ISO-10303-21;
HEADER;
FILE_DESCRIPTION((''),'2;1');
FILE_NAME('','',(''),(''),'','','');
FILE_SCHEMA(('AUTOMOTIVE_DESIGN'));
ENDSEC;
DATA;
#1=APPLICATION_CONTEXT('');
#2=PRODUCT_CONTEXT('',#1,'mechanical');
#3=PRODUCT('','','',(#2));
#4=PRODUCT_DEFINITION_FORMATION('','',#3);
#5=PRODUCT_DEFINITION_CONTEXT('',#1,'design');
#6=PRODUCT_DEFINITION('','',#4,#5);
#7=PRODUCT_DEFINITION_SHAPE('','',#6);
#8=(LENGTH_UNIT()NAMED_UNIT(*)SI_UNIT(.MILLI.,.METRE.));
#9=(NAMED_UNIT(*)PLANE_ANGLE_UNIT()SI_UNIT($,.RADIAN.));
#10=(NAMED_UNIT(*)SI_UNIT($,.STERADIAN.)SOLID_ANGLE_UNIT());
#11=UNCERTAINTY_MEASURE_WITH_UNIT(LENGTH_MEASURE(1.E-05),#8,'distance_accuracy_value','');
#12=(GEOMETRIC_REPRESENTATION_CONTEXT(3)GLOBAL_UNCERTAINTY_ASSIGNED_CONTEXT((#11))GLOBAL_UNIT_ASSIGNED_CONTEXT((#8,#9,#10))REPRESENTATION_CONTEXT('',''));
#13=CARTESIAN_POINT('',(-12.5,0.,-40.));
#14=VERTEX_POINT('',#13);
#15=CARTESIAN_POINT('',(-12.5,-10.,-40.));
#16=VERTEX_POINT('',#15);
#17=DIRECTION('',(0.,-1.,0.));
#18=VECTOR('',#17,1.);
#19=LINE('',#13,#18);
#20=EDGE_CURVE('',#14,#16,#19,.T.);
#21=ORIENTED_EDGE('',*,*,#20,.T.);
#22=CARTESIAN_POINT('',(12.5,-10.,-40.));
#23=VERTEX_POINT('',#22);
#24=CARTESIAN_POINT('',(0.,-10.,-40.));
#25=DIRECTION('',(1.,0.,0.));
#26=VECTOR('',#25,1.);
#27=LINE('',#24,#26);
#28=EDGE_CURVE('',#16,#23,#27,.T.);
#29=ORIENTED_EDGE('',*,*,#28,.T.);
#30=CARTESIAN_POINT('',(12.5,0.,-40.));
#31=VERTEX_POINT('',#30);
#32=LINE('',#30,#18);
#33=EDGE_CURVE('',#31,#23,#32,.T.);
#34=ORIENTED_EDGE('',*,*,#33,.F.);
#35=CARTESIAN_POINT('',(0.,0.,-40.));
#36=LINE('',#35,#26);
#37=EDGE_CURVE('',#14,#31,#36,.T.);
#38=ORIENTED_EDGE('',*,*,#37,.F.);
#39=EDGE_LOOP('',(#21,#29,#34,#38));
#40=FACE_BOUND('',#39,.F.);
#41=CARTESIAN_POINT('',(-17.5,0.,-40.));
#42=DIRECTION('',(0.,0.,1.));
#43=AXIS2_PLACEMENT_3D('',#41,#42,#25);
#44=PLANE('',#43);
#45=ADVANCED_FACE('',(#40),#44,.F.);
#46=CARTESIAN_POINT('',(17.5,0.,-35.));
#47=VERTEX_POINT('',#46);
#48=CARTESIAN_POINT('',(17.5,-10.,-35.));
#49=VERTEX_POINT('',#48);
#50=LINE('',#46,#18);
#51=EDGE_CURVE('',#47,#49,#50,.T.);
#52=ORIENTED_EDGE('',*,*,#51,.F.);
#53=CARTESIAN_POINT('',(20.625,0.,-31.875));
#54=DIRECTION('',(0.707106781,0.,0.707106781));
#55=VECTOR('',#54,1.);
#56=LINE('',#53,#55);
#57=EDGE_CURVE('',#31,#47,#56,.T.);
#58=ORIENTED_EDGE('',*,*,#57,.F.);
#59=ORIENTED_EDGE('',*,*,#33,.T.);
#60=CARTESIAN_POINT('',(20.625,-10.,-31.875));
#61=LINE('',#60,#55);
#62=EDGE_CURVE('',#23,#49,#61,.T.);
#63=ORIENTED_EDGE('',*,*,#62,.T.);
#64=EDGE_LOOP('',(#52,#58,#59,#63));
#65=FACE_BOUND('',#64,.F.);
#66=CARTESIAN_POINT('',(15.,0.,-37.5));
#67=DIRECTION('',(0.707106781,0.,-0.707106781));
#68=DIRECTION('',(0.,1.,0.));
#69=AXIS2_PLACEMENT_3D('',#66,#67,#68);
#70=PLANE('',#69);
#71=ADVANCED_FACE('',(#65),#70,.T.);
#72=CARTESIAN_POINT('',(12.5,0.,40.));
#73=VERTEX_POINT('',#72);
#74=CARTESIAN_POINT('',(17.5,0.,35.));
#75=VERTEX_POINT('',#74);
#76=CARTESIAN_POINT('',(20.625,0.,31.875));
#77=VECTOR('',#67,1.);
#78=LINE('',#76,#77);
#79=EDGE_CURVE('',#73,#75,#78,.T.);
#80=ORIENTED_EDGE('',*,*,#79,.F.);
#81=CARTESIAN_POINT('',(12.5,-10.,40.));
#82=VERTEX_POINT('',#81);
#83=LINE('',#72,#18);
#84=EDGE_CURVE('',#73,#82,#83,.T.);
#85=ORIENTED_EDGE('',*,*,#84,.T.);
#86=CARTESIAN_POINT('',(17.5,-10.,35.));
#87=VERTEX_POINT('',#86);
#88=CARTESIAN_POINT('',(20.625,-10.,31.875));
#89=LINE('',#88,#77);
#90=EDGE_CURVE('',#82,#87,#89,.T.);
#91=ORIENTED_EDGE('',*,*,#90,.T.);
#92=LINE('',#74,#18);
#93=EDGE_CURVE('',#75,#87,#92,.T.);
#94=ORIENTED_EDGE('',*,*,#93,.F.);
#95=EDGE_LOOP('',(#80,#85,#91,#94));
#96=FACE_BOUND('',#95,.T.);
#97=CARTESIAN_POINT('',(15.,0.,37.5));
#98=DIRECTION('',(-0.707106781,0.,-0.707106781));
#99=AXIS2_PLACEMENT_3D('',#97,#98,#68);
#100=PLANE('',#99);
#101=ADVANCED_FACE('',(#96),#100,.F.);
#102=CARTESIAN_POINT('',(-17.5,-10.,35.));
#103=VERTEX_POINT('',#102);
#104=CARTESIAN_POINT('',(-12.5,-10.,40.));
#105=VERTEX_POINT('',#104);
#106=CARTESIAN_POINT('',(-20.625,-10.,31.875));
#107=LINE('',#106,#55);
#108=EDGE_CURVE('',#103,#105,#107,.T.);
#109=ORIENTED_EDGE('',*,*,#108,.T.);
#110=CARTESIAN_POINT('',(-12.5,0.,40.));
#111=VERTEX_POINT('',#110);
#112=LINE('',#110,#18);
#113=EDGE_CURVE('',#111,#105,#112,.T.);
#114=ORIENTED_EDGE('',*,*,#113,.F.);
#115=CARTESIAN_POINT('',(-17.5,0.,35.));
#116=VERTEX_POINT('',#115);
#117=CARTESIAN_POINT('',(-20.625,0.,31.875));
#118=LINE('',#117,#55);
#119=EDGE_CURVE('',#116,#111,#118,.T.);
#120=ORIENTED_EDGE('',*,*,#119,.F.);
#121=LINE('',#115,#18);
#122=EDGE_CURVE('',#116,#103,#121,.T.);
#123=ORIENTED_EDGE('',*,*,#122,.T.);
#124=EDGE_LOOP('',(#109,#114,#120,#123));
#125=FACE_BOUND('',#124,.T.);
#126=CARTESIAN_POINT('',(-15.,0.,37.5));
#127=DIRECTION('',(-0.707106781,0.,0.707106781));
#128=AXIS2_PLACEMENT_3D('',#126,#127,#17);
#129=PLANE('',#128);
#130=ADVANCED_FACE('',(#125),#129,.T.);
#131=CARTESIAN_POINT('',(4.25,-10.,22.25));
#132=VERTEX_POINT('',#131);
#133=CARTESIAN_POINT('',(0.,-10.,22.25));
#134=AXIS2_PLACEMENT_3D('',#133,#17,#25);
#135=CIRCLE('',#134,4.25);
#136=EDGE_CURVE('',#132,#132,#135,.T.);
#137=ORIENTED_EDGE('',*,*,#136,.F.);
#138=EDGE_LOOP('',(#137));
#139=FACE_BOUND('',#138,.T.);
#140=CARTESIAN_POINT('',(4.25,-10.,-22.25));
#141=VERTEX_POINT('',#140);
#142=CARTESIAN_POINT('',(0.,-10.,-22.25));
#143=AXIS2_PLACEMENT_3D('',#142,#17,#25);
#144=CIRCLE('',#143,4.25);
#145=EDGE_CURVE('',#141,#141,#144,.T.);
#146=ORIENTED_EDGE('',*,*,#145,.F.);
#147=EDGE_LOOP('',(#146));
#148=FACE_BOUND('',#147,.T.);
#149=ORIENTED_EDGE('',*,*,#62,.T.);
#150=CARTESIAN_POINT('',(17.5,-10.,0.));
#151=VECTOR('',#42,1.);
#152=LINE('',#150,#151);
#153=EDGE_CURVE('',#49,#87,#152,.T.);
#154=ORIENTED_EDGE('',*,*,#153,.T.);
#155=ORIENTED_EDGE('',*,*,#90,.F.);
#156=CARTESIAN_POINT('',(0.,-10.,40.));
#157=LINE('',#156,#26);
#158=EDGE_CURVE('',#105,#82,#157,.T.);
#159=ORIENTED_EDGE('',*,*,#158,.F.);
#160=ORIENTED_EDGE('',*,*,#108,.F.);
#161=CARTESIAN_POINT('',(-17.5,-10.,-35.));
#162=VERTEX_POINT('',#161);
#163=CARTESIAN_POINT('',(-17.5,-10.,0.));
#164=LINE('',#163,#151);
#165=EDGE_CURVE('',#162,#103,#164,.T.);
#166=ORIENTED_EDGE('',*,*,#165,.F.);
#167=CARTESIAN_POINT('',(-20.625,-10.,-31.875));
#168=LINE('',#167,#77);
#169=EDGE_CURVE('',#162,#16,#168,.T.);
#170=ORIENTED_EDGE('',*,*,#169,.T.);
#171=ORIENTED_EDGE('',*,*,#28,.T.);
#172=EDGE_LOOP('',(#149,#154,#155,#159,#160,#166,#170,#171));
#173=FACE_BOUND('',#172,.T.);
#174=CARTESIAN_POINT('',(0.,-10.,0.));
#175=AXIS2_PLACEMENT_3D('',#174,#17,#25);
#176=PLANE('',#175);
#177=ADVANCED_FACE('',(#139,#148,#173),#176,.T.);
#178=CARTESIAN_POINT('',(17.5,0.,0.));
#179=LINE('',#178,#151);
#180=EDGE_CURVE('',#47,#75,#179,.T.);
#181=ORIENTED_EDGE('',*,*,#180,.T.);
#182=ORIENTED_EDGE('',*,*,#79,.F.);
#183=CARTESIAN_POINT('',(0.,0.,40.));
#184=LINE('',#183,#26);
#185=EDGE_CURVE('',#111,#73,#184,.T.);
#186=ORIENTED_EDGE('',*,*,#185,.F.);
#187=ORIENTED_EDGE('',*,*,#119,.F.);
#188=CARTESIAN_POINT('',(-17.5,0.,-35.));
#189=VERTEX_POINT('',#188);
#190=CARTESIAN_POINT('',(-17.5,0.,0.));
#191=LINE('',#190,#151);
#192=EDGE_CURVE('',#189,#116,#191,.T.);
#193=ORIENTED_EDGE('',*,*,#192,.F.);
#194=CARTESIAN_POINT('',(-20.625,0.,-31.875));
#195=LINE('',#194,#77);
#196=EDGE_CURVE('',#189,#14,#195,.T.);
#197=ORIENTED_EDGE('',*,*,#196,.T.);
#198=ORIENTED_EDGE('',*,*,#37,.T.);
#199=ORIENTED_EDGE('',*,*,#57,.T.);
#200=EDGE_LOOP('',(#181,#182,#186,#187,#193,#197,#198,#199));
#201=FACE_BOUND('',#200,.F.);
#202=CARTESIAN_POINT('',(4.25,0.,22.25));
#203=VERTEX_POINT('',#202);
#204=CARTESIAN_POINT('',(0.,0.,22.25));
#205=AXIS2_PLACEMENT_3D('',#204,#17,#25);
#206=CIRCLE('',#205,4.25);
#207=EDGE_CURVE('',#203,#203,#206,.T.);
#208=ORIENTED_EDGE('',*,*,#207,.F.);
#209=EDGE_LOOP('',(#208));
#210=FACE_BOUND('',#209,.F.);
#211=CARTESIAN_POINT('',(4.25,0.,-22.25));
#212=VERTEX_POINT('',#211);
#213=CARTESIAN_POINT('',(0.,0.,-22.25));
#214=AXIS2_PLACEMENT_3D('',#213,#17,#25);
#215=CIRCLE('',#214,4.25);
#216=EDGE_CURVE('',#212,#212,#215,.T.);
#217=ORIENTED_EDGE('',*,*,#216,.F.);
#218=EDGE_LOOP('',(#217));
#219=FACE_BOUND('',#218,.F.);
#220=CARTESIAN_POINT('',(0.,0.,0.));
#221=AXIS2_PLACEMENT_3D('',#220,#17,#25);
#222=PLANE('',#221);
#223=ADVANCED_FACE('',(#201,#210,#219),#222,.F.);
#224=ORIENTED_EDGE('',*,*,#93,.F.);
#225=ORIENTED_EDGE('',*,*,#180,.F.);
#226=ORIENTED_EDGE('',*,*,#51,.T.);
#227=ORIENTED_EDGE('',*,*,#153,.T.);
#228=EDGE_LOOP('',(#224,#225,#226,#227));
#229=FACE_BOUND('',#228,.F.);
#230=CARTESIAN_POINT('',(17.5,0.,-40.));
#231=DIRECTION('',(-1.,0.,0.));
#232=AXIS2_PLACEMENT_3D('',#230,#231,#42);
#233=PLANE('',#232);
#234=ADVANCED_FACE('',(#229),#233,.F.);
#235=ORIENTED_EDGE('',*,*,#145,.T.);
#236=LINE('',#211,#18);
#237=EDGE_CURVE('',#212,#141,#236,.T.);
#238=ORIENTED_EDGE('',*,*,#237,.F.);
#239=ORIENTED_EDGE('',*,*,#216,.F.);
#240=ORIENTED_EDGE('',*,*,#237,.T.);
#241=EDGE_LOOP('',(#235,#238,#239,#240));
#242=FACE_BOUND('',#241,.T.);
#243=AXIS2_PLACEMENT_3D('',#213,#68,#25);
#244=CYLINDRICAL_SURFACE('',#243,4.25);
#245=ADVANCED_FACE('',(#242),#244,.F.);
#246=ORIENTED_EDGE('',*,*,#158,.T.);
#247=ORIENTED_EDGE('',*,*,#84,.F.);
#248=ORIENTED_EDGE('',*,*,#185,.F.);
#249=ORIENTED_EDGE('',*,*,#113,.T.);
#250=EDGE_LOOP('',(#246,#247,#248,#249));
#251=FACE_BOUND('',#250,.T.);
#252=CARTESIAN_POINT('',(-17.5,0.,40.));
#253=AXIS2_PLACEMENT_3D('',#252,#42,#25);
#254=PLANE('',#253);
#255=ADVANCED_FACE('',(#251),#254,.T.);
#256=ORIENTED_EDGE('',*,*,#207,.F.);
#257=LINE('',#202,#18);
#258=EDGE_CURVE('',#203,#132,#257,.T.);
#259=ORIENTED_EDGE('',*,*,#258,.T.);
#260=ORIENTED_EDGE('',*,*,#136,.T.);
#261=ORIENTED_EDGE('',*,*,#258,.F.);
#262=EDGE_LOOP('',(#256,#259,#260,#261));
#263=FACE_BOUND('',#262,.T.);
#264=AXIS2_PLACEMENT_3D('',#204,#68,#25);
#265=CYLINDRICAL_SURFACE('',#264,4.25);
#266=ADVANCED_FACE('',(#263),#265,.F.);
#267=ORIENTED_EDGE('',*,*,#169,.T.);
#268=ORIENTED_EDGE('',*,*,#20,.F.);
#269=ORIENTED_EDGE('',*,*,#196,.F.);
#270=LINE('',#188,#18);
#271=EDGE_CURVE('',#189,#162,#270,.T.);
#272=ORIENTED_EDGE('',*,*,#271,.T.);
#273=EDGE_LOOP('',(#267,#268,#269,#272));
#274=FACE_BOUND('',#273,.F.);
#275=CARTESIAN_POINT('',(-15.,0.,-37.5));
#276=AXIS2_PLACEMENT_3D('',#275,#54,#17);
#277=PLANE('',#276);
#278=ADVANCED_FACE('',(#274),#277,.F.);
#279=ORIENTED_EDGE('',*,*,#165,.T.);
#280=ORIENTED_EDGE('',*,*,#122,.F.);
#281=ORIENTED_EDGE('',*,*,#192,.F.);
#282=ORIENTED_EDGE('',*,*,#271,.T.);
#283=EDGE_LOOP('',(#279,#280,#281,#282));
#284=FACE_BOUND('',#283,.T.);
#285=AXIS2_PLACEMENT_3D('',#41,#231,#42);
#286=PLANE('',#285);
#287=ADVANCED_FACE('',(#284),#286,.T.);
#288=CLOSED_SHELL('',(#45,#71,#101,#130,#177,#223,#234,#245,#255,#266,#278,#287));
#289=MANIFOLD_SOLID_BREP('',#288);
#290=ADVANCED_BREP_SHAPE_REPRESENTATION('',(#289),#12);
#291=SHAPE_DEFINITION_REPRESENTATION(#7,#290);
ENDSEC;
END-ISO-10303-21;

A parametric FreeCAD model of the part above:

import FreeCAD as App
import Part
import Sketcher
from FreeCAD import Vector
Q = App.Units.Quantity


def edges_at(feature, points):
    """Names of the edges that pass closest to the given points."""
    edges = feature.Shape.Edges
    near = lambda p: min(range(len(edges)), key=lambda i: edges[i].distToShape(Part.Vertex(*p))[0])
    return sorted({f"Edge{near(p) + 1}" for p in points})

doc = App.newDocument("Part")
body = doc.addObject("PartDesign::Body", "Body")

sketch1 = body.newObject("Sketcher::SketchObject", "Sketch")
sketch1.AttachmentSupport = (doc.getObject("XZ_Plane"), [""])
sketch1.MapMode = "FlatFace"
sketch1.addGeometry(Part.LineSegment(Vector(-17.5, 40, 0), Vector(-17.5, -40, 0)), False)
sketch1.addGeometry(Part.LineSegment(Vector(-17.5, -40, 0), Vector(17.5, -40, 0)), False)
sketch1.addGeometry(Part.LineSegment(Vector(17.5, -40, 0), Vector(17.5, 40, 0)), False)
sketch1.addGeometry(Part.LineSegment(Vector(17.5, 40, 0), Vector(-17.5, 40, 0)), False)
sketch1.addGeometry(Part.Circle(Vector(0, -22.2, 0), Vector(0, 0, 1), 4.2), False)
sketch1.addGeometry(Part.Circle(Vector(0, 22.2, 0), Vector(0, 0, 1), 4.2), False)
sketch1.addConstraint(Sketcher.Constraint("Coincident", 0, 2, 1, 1))
sketch1.addConstraint(Sketcher.Constraint("Coincident", 1, 2, 2, 1))
sketch1.addConstraint(Sketcher.Constraint("Coincident", 2, 2, 3, 1))
sketch1.addConstraint(Sketcher.Constraint("Coincident", 3, 2, 0, 1))
sketch1.addConstraint(Sketcher.Constraint("Vertical", 0))
sketch1.addConstraint(Sketcher.Constraint("Horizontal", 1))
sketch1.addConstraint(Sketcher.Constraint("Vertical", 2))
sketch1.addConstraint(Sketcher.Constraint("Horizontal", 3))
sketch1.addConstraint(Sketcher.Constraint("Equal", 4, 5))
sketch1.addConstraint(Sketcher.Constraint("Symmetric", 4, 3, 5, 3, -1, 1))
sketch1.addConstraint(Sketcher.Constraint("Symmetric", 0, 2, 2, 2, -1, 1))
sketch1.addConstraint(Sketcher.Constraint("PointOnObject", 4, 3, -2))
sketch1.addConstraint(Sketcher.Constraint("Diameter", 4, Q("8.5 mm")))
sketch1.addConstraint(Sketcher.Constraint("DistanceX", 1, 1, 1, 2, Q("35 mm")))
sketch1.addConstraint(Sketcher.Constraint("DistanceY", 0, 2, 0, 1, Q("80 mm")))
sketch1.addConstraint(Sketcher.Constraint("DistanceY", 4, 3, 5, 3, Q("44.5 mm")))
pad1 = body.newObject("PartDesign::Pad", "Pad")
pad1.Profile = sketch1
pad1.Length = 10
doc.recompute()

chamfer = body.newObject("PartDesign::Chamfer", "Chamfer")
chamfer.Base = (pad1, edges_at(pad1, [
    (-17.5, -5, 40),
    (17.5, -5, 40),
    (-17.5, -5, -40),
    (17.5, -5, -40),
]))
chamfer.Size = 5

doc.recompute()
